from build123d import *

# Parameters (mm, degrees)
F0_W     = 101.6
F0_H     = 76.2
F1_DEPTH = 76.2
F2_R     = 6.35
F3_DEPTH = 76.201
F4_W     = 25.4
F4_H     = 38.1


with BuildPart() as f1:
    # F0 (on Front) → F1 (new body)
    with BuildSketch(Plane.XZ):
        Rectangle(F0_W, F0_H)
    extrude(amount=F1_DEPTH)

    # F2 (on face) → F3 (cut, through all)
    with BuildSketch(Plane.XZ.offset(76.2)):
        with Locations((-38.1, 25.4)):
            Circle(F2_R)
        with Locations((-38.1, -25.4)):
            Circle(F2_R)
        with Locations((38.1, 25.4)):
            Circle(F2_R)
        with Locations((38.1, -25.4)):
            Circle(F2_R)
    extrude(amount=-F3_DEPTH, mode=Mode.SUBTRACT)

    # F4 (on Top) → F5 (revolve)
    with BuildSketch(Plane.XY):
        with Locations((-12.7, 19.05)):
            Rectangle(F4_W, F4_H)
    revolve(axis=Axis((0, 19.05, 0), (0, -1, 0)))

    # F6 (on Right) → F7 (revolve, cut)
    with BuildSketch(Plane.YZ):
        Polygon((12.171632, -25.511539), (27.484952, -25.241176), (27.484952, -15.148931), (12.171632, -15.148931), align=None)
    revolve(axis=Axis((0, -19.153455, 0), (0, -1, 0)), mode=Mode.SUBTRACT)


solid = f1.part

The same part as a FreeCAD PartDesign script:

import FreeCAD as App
import Part
import Sketcher
Q = App.Units.Quantity

doc = App.newDocument("Part")
params = doc.addObject("Spreadsheet::Sheet", "Params")
for row, (alias, value) in enumerate([
    ("sketch1_width", "4 in"),
    ("sketch1_height", "3 in"),
    ("pad1_length", "3 in"),
    ("sketch2_diameter", "0.5 in"),
    ("sketch3_width", "1 in"),
    ("sketch3_height", "1.5 in"),
    ("revolution_angle", "360 deg"),
    ("groove_angle", "360 deg"),
], start=1):
    params.set(f"A{row}", alias)
    params.set(f"B{row}", "=" + value)
    params.setAlias(f"B{row}", alias)

body = doc.addObject("PartDesign::Body", "Body")

# Sketch on XZ plane
sketch1 = body.newObject("Sketcher::SketchObject", "Sketch")
sketch1.AttachmentSupport = (doc.getObject("XZ_Plane"), [""])
sketch1.MapMode = "FlatFace"
sketch1.addGeometry(Part.LineSegment(App.Vector(-50.8, 38.1, 0), App.Vector(-50.8, -38.1, 0)), False)
sketch1.addGeometry(Part.LineSegment(App.Vector(-50.8, -38.1, 0), App.Vector(50.8, -38.1, 0)), False)
sketch1.addGeometry(Part.LineSegment(App.Vector(50.8, -38.1, 0), App.Vector(50.8, 38.1, 0)), False)
sketch1.addGeometry(Part.LineSegment(App.Vector(50.8, 38.1, 0), App.Vector(-50.8, 38.1, 0)), False)
sketch1.addConstraint(Sketcher.Constraint("Coincident", 0, 2, 1, 1))
sketch1.addConstraint(Sketcher.Constraint("Coincident", 1, 2, 2, 1))
sketch1.addConstraint(Sketcher.Constraint("Coincident", 2, 2, 3, 1))
sketch1.addConstraint(Sketcher.Constraint("Coincident", 3, 2, 0, 1))
sketch1.addConstraint(Sketcher.Constraint("Vertical", 0))
sketch1.addConstraint(Sketcher.Constraint("Horizontal", 1))
sketch1.addConstraint(Sketcher.Constraint("Vertical", 2))
sketch1.addConstraint(Sketcher.Constraint("Horizontal", 3))
sketch1.addConstraint(Sketcher.Constraint("Symmetric", 0, 2, 2, 2, -1, 1))
sketch1.addConstraint(Sketcher.Constraint("DistanceX", 1, 1, 1, 2, Q("4 in")))
sketch1.addConstraint(Sketcher.Constraint("DistanceY", 0, 2, 0, 1, Q("3 in")))
sketch1.setExpression("Constraints[9]", "Params.sketch1_width")
sketch1.setExpression("Constraints[10]", "Params.sketch1_height")
pad1 = body.newObject("PartDesign::Pad", "Pad")
pad1.Profile = sketch1
pad1.setExpression("Length", "Params.pad1_length")

# Sketch on XZ plane
sketch2 = body.newObject("Sketcher::SketchObject", "Sketch001")
sketch2.AttachmentSupport = (doc.getObject("XZ_Plane"), [""])
sketch2.MapMode = "FlatFace"
sketch2.AttachmentOffset = App.Placement(App.Vector(0, 0, 3 * 25.4), App.Rotation())
sketch2.addGeometry(Part.Circle(App.Vector(-38.1, 25.4, 0), App.Vector(0, 0, 1), 6.35), False)
sketch2.addGeometry(Part.Circle(App.Vector(-38.1, -25.4, 0), App.Vector(0, 0, 1), 6.35), False)
sketch2.addGeometry(Part.Circle(App.Vector(38.1, 25.4, 0), App.Vector(0, 0, 1), 6.35), False)
sketch2.addGeometry(Part.Circle(App.Vector(38.1, -25.4, 0), App.Vector(0, 0, 1), 6.35), False)
sketch2.addConstraint(Sketcher.Constraint("Equal", 0, 1))
sketch2.addConstraint(Sketcher.Constraint("Equal", 1, 2))
sketch2.addConstraint(Sketcher.Constraint("Equal", 2, 3))
sketch2.addConstraint(Sketcher.Constraint("Symmetric", 1, 3, 2, 3, -1, 1))
sketch2.addConstraint(Sketcher.Constraint("Symmetric", 0, 3, 3, 3, -1, 1))
sketch2.addConstraint(Sketcher.Constraint("Symmetric", 0, 3, 2, 3, -2))
sketch2.addConstraint(Sketcher.Constraint("Diameter", 0, Q("0.5 in")))
sketch2.addConstraint(Sketcher.Constraint("DistanceY", -1, 1, 0, 3, Q("1 in")))
sketch2.addConstraint(Sketcher.Constraint("DistanceX", 0, 3, 2, 3, Q("3 in")))
sketch2.setExpression("Constraints[6]", "Params.sketch2_diameter")
pocket1 = body.newObject("PartDesign::Pocket", "Pocket")
pocket1.Profile = sketch2
pocket1.Type = "ThroughAll"

# Sketch on XY plane
sketch3 = body.newObject("Sketcher::SketchObject", "Sketch002")
sketch3.AttachmentSupport = (doc.getObject("XY_Plane"), [""])
sketch3.MapMode = "FlatFace"
sketch3.addGeometry(Part.LineSegment(App.Vector(-25.4, 38.1, 0), App.Vector(-25.4, 0, 0)), False)
sketch3.addGeometry(Part.LineSegment(App.Vector(-25.4, 0, 0), App.Vector(0, 0, 0)), False)
sketch3.addGeometry(Part.LineSegment(App.Vector(0, 0, 0), App.Vector(0, 38.1, 0)), False)
sketch3.addGeometry(Part.LineSegment(App.Vector(0, 38.1, 0), App.Vector(-25.4, 38.1, 0)), False)
sketch3.addConstraint(Sketcher.Constraint("Coincident", 0, 2, 1, 1))
sketch3.addConstraint(Sketcher.Constraint("Coincident", 1, 2, 2, 1))
sketch3.addConstraint(Sketcher.Constraint("Coincident", 2, 2, 3, 1))
sketch3.addConstraint(Sketcher.Constraint("Coincident", 3, 2, 0, 1))
sketch3.addConstraint(Sketcher.Constraint("Vertical", 0))
sketch3.addConstraint(Sketcher.Constraint("Horizontal", 1))
sketch3.addConstraint(Sketcher.Constraint("Vertical", 2))
sketch3.addConstraint(Sketcher.Constraint("Horizontal", 3))
sketch3.addConstraint(Sketcher.Constraint("Coincident", 1, 2, -1, 1))
sketch3.addConstraint(Sketcher.Constraint("DistanceX", 1, 1, 1, 2, Q("1 in")))
sketch3.addConstraint(Sketcher.Constraint("DistanceY", 0, 2, 0, 1, Q("1.5 in")))
sketch3.setExpression("Constraints[9]", "Params.sketch3_width")
sketch3.setExpression("Constraints[10]", "Params.sketch3_height")
revolution = body.newObject("PartDesign::Revolution", "Revolution")
revolution.Profile = sketch3
revolution.ReferenceAxis = (sketch3, ["V_Axis"])
revolution.setExpression("Angle", "Params.revolution_angle")

# Sketch on YZ plane
sketch4 = body.newObject("Sketcher::SketchObject", "Sketch003")
sketch4.AttachmentSupport = (doc.getObject("YZ_Plane"), [""])
sketch4.MapMode = "FlatFace"
sketch4.addGeometry(Part.LineSegment(App.Vector(12.171632, -25.511539, 0), App.Vector(27.484952, -25.241176, 0)), False)
sketch4.addGeometry(Part.LineSegment(App.Vector(27.484952, -25.241176, 0), App.Vector(27.484952, -15.148931, 0)), False)
sketch4.addGeometry(Part.LineSegment(App.Vector(27.484952, -15.148931, 0), App.Vector(12.171632, -15.148931, 0)), False)
sketch4.addGeometry(Part.LineSegment(App.Vector(12.171632, -15.148931, 0), App.Vector(12.171632, -25.511539, 0)), False)
sketch4.addConstraint(Sketcher.Constraint("Coincident", 0, 2, 1, 1))
sketch4.addConstraint(Sketcher.Constraint("Coincident", 1, 2, 2, 1))
sketch4.addConstraint(Sketcher.Constraint("Coincident", 2, 2, 3, 1))
sketch4.addConstraint(Sketcher.Constraint("Coincident", 3, 2, 0, 1))
sketch4.addConstraint(Sketcher.Constraint("Vertical", 1))
sketch4.addConstraint(Sketcher.Constraint("Horizontal", 2))
sketch4.addConstraint(Sketcher.Constraint("Vertical", 3))
sketch4.addConstraint(Sketcher.Constraint("DistanceX", 2, 2, 2, 1, Q("15.31332 mm")))
sketch4.addConstraint(Sketcher.Constraint("DistanceY", 1, 1, 1, 2, Q("10.092245 mm")))
sketch4.addConstraint(Sketcher.Constraint("DistanceY", 3, 2, 3, 1, Q("10.362608 mm")))
sketch4.addConstraint(Sketcher.Constraint("DistanceX", -1, 1, 0, 2, Q("27.484952 mm")))
sketch4.addConstraint(Sketcher.Constraint("DistanceY", 1, 2, -1, 1, Q("15.148931 mm")))
groove = body.newObject("PartDesign::Groove", "Groove")
groove.Profile = sketch4
groove.ReferenceAxis = (sketch4, ["H_Axis"])
groove.setExpression("Angle", "Params.groove_angle")

doc.recompute()
